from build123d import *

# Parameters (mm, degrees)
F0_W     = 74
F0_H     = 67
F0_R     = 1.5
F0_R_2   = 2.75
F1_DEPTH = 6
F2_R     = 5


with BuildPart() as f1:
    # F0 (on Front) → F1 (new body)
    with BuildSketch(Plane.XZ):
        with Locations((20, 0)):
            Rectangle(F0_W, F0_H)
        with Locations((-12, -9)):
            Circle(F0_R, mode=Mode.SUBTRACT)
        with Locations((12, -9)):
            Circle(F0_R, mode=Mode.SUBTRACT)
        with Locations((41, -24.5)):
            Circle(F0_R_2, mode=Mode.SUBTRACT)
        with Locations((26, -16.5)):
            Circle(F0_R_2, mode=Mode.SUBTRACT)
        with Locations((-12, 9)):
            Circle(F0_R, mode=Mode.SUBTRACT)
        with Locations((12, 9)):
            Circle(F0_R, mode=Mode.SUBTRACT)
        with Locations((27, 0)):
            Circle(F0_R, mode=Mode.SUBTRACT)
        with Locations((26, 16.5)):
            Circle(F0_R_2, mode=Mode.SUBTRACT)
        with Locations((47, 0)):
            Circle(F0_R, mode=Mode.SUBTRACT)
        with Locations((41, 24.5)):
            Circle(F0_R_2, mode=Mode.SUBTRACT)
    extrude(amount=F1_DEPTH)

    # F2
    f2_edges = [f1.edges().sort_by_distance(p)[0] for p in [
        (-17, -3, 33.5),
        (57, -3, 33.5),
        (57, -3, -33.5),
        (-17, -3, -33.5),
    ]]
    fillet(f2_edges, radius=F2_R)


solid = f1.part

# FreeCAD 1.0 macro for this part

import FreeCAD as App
import Part
import Sketcher

V = App.Vector
Q = App.Units.Quantity


def edges_at(feature, points):
    """Names of the edges that pass closest to the given points."""
    edges = feature.Shape.Edges
    near = lambda p: min(range(len(edges)), key=lambda i: edges[i].distToShape(Part.Vertex(*p))[0])
    return sorted({f"Edge{near(p) + 1}" for p in points})

doc = App.newDocument("Part")
body = doc.addObject("PartDesign::Body", "Body")

# Sketch on XZ plane
sketch1 = body.newObject("Sketcher::SketchObject", "Sketch")
sketch1.AttachmentSupport = (doc.getObject("XZ_Plane"), [""])
sketch1.MapMode = "FlatFace"
sketch1.addGeometry(Part.LineSegment(V(-17, 33.5, 0), V(-17, -33.5, 0)), False)
sketch1.addGeometry(Part.LineSegment(V(-17, -33.5, 0), V(57, -33.5, 0)), False)
sketch1.addGeometry(Part.LineSegment(V(57, -33.5, 0), V(57, 33.5, 0)), False)
sketch1.addGeometry(Part.LineSegment(V(57, 33.5, 0), V(-17, 33.5, 0)), False)
sketch1.addGeometry(Part.Circle(V(-12, -9, 0), V(0, 0, 1), 1.5), False)
sketch1.addGeometry(Part.Circle(V(12, -9, 0), V(0, 0, 1), 1.5), False)
sketch1.addGeometry(Part.Circle(V(26, -16.5, 0), V(0, 0, 1), 2.8), False)
sketch1.addGeometry(Part.Circle(V(41, -24.5, 0), V(0, 0, 1), 2.8), False)
sketch1.addGeometry(Part.Circle(V(-12, 9, 0), V(0, 0, 1), 1.5), False)
sketch1.addGeometry(Part.Circle(V(12, 9, 0), V(0, 0, 1), 1.5), False)
sketch1.addGeometry(Part.Circle(V(27, 0, 0), V(0, 0, 1), 1.5), False)
sketch1.addGeometry(Part.Circle(V(47, 0, 0), V(0, 0, 1), 1.5), False)
sketch1.addGeometry(Part.Circle(V(26, 16.5, 0), V(0, 0, 1), 2.8), False)
sketch1.addGeometry(Part.Circle(V(41, 24.5, 0), V(0, 0, 1), 2.8), False)
sketch1.addConstraint(Sketcher.Constraint("Coincident", 0, 2, 1, 1))
sketch1.addConstraint(Sketcher.Constraint("Coincident", 1, 2, 2, 1))
sketch1.addConstraint(Sketcher.Constraint("Coincident", 2, 2, 3, 1))
sketch1.addConstraint(Sketcher.Constraint("Coincident", 3, 2, 0, 1))
sketch1.addConstraint(Sketcher.Constraint("Vertical", 0))
sketch1.addConstraint(Sketcher.Constraint("Horizontal", 1))
sketch1.addConstraint(Sketcher.Constraint("Vertical", 2))
sketch1.addConstraint(Sketcher.Constraint("Horizontal", 3))
sketch1.addConstraint(Sketcher.Constraint("Equal", 4, 5))
sketch1.addConstraint(Sketcher.Constraint("Equal", 6, 7))
sketch1.addConstraint(Sketcher.Constraint("Equal", 5, 8))
sketch1.addConstraint(Sketcher.Constraint("Equal", 8, 9))
sketch1.addConstraint(Sketcher.Constraint("Equal", 9, 10))
sketch1.addConstraint(Sketcher.Constraint("Equal", 10, 11))
sketch1.addConstraint(Sketcher.Constraint("Equal", 7, 12))
sketch1.addConstraint(Sketcher.Constraint("Equal", 12, 13))
sketch1.addConstraint(Sketcher.Constraint("Symmetric", 5, 3, 8, 3, -1, 1))
sketch1.addConstraint(Sketcher.Constraint("Symmetric", 4, 3, 9, 3, -1, 1))
sketch1.addConstraint(Sketcher.Constraint("Symmetric", 4, 3, 5, 3, -2))
sketch1.addConstraint(Sketcher.Constraint("Symmetric", 6, 3, 12, 3, -1))
sketch1.addConstraint(Sketcher.Constraint("Symmetric", 7, 3, 13, 3, -1))
sketch1.addConstraint(Sketcher.Constraint("PointOnObject", 10, 3, -1))
sketch1.addConstraint(Sketcher.Constraint("PointOnObject", 11, 3, -1))
sketch1.addConstraint(Sketcher.Constraint("Diameter", 4, Q("3 mm")))
sketch1.addConstraint(Sketcher.Constraint("Diameter", 6, Q("5.5 mm")))
sketch1.addConstraint(Sketcher.Constraint("DistanceX", 1, 1, 1, 2, Q("74 mm")))
sketch1.addConstraint(Sketcher.Constraint("DistanceY", 0, 2, 0, 1, Q("67 mm")))
sketch1.addConstraint(Sketcher.Constraint("DistanceX", 4, 3, -1, 1, Q("12 mm")))
sketch1.addConstraint(Sketcher.Constraint("DistanceY", 4, 3, -1, 1, Q("9 mm")))
sketch1.addConstraint(Sketcher.Constraint("DistanceX", -1, 1, 6, 3, Q("26 mm")))
sketch1.addConstraint(Sketcher.Constraint("DistanceX", -1, 1, 7, 3, Q("41 mm")))
sketch1.addConstraint(Sketcher.Constraint("DistanceX", -1, 1, 10, 3, Q("27 mm")))
sketch1.addConstraint(Sketcher.Constraint("DistanceX", -1, 1, 11, 3, Q("47 mm")))
sketch1.addConstraint(Sketcher.Constraint("DistanceX", 0, 2, -1, 1, Q("17 mm")))
sketch1.addConstraint(Sketcher.Constraint("DistanceY", 7, 3, 6, 3, Q("8 mm")))
sketch1.addConstraint(Sketcher.Constraint("DistanceY", 6, 3, 12, 3, Q("33 mm")))
sketch1.addConstraint(Sketcher.Constraint("DistanceY", 0, 2, 6, 3, Q("17 mm")))
pad1 = body.newObject("PartDesign::Pad", "Pad")
pad1.Profile = sketch1
pad1.Length = 6
doc.recompute()

fillet = body.newObject("PartDesign::Fillet", "Fillet")
fillet.Base = (pad1, edges_at(pad1, [
    (-17, -3, 33.5),
    (57, -3, 33.5),
    (57, -3, -33.5),
    (-17, -3, -33.5),
]))
fillet.Radius = 5

doc.recompute()
